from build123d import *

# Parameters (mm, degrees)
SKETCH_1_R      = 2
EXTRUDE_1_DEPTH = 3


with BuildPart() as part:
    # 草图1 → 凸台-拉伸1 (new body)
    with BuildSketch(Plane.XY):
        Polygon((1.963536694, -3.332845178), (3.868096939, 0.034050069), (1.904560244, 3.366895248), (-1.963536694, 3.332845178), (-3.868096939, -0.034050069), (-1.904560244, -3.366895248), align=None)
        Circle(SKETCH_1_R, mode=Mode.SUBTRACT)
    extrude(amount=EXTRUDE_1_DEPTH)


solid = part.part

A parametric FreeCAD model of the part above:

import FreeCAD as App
import Part
import Sketcher
from FreeCAD import Vector


def add_polygon(sketch, points):
    """Adds a closed chain of lines whose ends are joined by coincident constraints."""
    first, n = sketch.GeometryCount, len(points)
    for a, b in zip(points, points[1:] + points[:1]):
        sketch.addGeometry(Part.LineSegment(App.Vector(*a, 0), App.Vector(*b, 0)), False)
    for i in range(n):
        sketch.addConstraint(Sketcher.Constraint("Coincident", first + i, 2, first + (i + 1) % n, 1))

doc = App.newDocument("Part")
body = doc.addObject("PartDesign::Body", "Body")

# Sketch on XY plane
sketch1 = body.newObject("Sketcher::SketchObject", "Sketch")
sketch1.AttachmentSupport = (doc.getObject("XY_Plane"), [""])
sketch1.MapMode = "FlatFace"
add_polygon(sketch1, [(2, -3.3), (3.9, 0), (1.9, 3.4), (-2, 3.3), (-3.9, 0), (-1.9, -3.4)])  # lines 0-5
sketch1.addGeometry(Part.Circle(Vector(0, 0, 0), Vector(0, 0, 1), 2), False)  # 6
sketch1.addConstraint([
    Sketcher.Constraint("Coincident", 6, 3, -1, 1),
    Sketcher.Constraint("Symmetric", 0, 2, 3, 2, -1, 1),
    Sketcher.Constraint("Symmetric", 1, 2, 4, 2, -1, 1),
    Sketcher.Constraint("Symmetric", 2, 2, 5, 2, -1, 1),
    Sketcher.Constraint("Equal", 0, 1),
    Sketcher.Constraint("Equal", 1, 2),
    Sketcher.Constraint("Diameter", 6, 4.0),
    Sketcher.Constraint("DistanceY", 3, 2, 0, 2, 0.0681),
    Sketcher.Constraint("DistanceX", -1, 1, 1, 2, 1.90456),
    Sketcher.Constraint("DistanceY", 2, 2, 1, 2, 0.03405),
    Sketcher.Constraint("DistanceX", 3, 2, 2, 2, 1.90456),
])
pad1 = body.newObject("PartDesign::Pad", "Pad")
pad1.Profile = sketch1
pad1.Length = 3

doc.recompute()
